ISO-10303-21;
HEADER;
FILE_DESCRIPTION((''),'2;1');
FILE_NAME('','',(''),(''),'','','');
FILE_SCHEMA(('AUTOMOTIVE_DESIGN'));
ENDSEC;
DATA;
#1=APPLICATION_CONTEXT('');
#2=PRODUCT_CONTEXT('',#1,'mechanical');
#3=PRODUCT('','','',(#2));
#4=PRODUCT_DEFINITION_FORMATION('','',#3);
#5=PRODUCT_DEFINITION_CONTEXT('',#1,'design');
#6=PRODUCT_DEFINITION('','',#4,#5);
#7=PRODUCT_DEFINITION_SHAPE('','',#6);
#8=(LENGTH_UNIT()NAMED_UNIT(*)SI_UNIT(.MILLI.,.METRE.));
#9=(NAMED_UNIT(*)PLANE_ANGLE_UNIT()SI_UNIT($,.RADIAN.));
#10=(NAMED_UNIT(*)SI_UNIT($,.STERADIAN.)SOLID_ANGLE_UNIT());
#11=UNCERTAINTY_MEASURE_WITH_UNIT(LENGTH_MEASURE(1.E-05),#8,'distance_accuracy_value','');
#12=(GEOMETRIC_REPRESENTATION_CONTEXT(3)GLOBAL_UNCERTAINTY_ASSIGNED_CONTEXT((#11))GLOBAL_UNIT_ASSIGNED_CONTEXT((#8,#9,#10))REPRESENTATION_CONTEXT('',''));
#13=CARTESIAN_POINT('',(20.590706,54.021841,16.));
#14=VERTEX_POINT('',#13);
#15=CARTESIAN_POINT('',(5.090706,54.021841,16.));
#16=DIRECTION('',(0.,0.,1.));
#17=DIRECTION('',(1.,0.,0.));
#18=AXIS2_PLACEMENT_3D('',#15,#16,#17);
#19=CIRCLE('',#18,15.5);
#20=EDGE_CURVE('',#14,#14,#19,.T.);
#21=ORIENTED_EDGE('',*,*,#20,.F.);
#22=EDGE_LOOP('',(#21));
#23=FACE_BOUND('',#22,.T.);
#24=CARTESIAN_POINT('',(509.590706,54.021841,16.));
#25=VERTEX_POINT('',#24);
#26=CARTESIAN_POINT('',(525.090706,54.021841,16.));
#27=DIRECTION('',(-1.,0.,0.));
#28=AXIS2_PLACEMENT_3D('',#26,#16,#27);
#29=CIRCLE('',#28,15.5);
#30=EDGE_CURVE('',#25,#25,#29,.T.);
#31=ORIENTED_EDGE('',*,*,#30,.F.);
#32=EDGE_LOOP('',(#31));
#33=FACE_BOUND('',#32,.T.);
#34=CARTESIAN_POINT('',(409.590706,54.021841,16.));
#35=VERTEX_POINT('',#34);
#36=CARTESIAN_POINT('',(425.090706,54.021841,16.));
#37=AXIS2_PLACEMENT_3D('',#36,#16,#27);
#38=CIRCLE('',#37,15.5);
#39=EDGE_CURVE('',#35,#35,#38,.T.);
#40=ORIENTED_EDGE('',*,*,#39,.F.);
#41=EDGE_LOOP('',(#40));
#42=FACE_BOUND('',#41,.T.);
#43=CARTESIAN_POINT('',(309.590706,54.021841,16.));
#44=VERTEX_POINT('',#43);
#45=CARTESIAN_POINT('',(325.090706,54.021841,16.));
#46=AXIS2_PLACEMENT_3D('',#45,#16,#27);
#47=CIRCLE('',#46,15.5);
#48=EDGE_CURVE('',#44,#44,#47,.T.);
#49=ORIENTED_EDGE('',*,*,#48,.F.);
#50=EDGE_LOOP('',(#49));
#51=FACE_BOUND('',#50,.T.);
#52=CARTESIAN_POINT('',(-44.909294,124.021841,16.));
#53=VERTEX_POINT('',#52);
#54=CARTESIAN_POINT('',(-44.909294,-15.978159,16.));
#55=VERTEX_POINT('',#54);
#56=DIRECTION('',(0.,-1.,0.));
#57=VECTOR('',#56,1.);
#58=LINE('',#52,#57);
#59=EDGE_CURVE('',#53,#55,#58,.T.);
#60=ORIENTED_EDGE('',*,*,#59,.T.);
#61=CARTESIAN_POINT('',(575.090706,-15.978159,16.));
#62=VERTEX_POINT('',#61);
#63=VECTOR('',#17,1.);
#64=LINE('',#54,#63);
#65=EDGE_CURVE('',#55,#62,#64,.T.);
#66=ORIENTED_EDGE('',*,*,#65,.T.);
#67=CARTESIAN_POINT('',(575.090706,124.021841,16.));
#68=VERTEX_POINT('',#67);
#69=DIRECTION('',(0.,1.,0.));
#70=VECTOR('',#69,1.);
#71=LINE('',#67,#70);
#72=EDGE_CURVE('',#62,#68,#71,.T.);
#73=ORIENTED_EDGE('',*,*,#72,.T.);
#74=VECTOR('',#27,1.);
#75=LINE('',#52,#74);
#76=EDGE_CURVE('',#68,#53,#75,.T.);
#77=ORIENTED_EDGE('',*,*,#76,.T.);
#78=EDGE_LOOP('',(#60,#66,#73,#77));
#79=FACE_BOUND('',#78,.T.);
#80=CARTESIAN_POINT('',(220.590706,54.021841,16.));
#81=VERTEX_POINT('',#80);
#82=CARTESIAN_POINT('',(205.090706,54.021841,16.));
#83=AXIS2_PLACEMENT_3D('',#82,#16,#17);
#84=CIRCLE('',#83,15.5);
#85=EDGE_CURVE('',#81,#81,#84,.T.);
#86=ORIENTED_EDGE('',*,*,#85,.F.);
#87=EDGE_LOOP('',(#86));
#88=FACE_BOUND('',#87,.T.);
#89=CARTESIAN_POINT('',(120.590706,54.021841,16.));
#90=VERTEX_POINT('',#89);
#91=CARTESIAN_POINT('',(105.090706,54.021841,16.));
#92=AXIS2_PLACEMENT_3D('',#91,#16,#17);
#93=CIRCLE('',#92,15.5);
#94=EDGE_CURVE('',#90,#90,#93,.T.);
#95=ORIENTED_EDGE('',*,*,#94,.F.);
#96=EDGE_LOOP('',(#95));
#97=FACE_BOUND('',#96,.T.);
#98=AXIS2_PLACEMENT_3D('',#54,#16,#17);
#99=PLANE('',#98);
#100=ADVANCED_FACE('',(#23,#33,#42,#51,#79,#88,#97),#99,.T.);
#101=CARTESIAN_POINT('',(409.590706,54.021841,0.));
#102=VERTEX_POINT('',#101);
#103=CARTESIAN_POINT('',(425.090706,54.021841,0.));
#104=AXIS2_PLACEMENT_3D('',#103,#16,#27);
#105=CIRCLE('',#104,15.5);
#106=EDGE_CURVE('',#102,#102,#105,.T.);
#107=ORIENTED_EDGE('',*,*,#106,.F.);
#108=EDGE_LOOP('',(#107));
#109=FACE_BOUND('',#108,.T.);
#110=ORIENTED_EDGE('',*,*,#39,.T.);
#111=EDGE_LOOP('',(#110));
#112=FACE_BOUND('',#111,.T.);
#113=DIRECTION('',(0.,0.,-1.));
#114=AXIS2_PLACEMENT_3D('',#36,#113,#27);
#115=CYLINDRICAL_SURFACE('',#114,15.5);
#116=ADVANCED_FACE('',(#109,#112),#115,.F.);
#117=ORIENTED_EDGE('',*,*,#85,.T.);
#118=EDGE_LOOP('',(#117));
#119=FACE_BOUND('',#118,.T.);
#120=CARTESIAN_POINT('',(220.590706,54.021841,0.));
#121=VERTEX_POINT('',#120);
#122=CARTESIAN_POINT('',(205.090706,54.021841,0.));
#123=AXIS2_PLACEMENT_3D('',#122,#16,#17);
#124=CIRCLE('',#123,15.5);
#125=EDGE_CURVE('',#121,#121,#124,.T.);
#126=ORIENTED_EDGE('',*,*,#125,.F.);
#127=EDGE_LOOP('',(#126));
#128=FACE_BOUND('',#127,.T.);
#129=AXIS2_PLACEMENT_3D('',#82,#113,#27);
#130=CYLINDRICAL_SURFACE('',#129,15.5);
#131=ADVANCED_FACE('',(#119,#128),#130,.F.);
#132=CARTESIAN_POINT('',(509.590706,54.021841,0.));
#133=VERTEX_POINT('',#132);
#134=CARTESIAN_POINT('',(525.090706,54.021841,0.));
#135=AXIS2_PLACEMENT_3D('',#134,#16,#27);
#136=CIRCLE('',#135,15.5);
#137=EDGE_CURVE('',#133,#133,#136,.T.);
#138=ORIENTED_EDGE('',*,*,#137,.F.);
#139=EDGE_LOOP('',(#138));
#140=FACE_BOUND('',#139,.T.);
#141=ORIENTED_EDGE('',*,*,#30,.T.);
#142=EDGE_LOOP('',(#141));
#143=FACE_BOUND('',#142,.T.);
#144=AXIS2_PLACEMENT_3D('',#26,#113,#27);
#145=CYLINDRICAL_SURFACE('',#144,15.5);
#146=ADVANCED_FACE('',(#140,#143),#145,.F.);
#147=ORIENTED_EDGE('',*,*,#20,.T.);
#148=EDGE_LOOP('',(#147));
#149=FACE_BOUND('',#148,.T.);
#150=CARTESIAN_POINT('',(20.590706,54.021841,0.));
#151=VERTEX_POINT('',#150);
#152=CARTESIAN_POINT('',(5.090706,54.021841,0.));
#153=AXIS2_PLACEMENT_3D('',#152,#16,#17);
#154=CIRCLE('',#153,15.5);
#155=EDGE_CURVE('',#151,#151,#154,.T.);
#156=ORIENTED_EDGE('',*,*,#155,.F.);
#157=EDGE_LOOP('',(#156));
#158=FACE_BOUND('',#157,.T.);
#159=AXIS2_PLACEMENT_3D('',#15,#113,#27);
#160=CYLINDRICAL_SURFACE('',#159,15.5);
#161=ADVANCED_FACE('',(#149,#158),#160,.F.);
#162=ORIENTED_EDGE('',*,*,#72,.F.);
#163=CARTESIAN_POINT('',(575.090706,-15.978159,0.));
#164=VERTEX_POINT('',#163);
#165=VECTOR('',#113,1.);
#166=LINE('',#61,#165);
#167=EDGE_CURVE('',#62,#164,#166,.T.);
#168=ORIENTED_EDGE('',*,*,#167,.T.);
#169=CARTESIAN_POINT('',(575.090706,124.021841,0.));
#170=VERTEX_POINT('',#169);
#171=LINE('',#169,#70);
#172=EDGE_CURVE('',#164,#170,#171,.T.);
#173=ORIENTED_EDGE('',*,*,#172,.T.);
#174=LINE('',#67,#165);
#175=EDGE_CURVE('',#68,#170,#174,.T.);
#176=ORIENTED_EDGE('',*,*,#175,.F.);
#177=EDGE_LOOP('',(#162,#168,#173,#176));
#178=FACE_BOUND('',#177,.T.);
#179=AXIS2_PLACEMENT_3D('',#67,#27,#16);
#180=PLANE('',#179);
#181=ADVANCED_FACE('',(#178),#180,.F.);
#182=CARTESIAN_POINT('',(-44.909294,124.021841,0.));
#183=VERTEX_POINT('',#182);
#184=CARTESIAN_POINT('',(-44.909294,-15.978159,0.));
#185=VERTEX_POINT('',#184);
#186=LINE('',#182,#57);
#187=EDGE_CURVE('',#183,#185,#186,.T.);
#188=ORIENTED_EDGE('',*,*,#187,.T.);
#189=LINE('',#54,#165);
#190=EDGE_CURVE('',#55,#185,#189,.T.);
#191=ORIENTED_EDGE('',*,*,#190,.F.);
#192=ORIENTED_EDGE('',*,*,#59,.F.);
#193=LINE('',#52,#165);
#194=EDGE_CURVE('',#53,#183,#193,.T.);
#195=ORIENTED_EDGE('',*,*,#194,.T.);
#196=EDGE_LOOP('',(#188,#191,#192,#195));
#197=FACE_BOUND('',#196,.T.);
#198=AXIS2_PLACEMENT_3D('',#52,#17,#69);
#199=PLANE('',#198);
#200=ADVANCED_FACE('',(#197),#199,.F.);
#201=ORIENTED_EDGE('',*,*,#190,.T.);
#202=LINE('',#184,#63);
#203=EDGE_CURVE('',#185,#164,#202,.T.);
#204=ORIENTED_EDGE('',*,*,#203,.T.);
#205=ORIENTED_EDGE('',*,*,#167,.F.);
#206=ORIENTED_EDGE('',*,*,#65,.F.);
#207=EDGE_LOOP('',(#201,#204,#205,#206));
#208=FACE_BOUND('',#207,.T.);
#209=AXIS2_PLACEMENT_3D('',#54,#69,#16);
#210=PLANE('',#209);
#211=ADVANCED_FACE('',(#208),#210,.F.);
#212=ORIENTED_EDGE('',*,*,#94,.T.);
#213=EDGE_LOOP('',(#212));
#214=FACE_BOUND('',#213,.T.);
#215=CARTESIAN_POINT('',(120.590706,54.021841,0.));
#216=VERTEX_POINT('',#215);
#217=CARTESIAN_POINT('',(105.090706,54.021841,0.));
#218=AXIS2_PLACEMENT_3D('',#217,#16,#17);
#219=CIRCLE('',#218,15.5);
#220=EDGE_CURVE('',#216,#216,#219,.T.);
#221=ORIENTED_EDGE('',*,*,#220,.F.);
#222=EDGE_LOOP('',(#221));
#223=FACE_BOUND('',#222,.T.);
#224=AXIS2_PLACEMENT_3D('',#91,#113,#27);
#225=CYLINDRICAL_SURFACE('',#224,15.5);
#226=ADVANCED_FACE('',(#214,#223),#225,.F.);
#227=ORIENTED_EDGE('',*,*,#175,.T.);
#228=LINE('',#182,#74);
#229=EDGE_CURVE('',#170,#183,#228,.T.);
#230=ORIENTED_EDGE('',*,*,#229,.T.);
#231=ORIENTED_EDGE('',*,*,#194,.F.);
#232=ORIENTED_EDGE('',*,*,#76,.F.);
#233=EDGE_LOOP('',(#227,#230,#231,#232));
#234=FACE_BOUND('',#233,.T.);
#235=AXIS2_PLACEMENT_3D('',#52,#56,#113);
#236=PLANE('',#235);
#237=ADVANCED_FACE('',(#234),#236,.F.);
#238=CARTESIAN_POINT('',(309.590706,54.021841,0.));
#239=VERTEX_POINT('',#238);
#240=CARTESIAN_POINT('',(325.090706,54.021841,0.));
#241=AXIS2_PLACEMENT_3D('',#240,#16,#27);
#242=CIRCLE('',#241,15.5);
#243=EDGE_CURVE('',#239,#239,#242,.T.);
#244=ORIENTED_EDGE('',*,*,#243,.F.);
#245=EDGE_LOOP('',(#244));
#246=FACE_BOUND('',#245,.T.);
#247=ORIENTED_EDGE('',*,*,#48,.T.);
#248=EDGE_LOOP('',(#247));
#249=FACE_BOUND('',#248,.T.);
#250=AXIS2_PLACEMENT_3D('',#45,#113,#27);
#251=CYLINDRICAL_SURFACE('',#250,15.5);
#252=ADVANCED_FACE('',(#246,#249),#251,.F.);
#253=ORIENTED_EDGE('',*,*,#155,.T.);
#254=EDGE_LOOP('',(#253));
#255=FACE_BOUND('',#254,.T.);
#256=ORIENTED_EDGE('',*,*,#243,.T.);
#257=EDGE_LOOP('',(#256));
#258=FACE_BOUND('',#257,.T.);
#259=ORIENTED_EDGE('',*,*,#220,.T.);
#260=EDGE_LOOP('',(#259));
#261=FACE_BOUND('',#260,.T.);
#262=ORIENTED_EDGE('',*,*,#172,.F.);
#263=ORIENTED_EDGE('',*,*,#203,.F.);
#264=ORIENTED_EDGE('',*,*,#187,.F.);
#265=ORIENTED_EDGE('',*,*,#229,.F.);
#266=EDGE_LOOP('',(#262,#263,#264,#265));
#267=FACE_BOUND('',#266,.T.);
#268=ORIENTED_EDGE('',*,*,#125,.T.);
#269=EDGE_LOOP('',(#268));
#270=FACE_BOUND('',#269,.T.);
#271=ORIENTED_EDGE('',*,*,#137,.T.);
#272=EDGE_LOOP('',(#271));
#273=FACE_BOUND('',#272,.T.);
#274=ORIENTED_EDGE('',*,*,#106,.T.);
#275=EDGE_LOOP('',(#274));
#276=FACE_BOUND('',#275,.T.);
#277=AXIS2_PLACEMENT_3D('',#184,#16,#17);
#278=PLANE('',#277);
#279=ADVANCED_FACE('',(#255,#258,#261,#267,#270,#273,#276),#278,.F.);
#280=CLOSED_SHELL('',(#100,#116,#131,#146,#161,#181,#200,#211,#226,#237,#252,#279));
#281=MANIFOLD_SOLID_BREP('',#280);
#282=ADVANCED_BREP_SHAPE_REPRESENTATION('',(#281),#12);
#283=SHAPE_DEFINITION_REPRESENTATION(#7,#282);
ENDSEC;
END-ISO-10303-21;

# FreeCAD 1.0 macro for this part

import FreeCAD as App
import Part
import Sketcher

V = App.Vector


def add_polygon(sketch, points):
    """Adds a closed chain of lines whose ends are joined by coincident constraints."""
    first, n = sketch.GeometryCount, len(points)
    for a, b in zip(points, points[1:] + points[:1]):
        sketch.addGeometry(Part.LineSegment(App.Vector(*a, 0), App.Vector(*b, 0)), False)
    for i in range(n):
        sketch.addConstraint(Sketcher.Constraint("Coincident", first + i, 2, first + (i + 1) % n, 1))

doc = App.newDocument("Part")
body = doc.addObject("PartDesign::Body", "Body")

sketch1 = body.newObject("Sketcher::SketchObject", "Sketch")
sketch1.AttachmentSupport = (doc.getObject("XY_Plane"), [""])
sketch1.MapMode = "FlatFace"
add_polygon(sketch1, [(-45, 124), (-45, -16), (575, -16), (575, 124)])
sketch1.addGeometry(Part.Circle(V(5, 54, 0), V(0, 0, 1), 16), False)
sketch1.addGeometry(Part.Circle(V(105, 54, 0), V(0, 0, 1), 16), False)
sketch1.addGeometry(Part.Circle(V(205, 54, 0), V(0, 0, 1), 16), False)
sketch1.addGeometry(Part.Circle(V(325, 54, 0), V(0, 0, 1), 16), False)
sketch1.addGeometry(Part.Circle(V(425, 54, 0), V(0, 0, 1), 16), False)
sketch1.addGeometry(Part.Circle(V(525, 54, 0), V(0, 0, 1), 16), False)
sketch1.addConstraint(Sketcher.Constraint("Vertical", 0))
sketch1.addConstraint(Sketcher.Constraint("Horizontal", 1))
sketch1.addConstraint(Sketcher.Constraint("Vertical", 2))
sketch1.addConstraint(Sketcher.Constraint("Horizontal", 3))
sketch1.addConstraint(Sketcher.Constraint("Equal", 4, 5))
sketch1.addConstraint(Sketcher.Constraint("Equal", 5, 6))
sketch1.addConstraint(Sketcher.Constraint("Equal", 6, 7))
sketch1.addConstraint(Sketcher.Constraint("Equal", 7, 8))
sketch1.addConstraint(Sketcher.Constraint("Equal", 8, 9))
sketch1.addConstraint(Sketcher.Constraint("Horizontal", 4, 3, 5, 3))
sketch1.addConstraint(Sketcher.Constraint("Horizontal", 5, 3, 6, 3))
sketch1.addConstraint(Sketcher.Constraint("Horizontal", 6, 3, 7, 3))
sketch1.addConstraint(Sketcher.Constraint("Horizontal", 7, 3, 8, 3))
sketch1.addConstraint(Sketcher.Constraint("Horizontal", 8, 3, 9, 3))
sketch1.addConstraint(Sketcher.Constraint("Diameter", 4, 31.0))
sketch1.addConstraint(Sketcher.Constraint("DistanceX", 1, 1, 1, 2, 620.0))
sketch1.addConstraint(Sketcher.Constraint("DistanceY", 0, 2, 0, 1, 140.0))
sketch1.addConstraint(Sketcher.Constraint("DistanceX", 4, 3, 5, 3, 100.0))
sketch1.addConstraint(Sketcher.Constraint("DistanceX", 5, 3, 6, 3, 100.0))
sketch1.addConstraint(Sketcher.Constraint("DistanceX", 6, 3, 7, 3, 120.0))
sketch1.addConstraint(Sketcher.Constraint("DistanceX", 7, 3, 8, 3, 100.0))
sketch1.addConstraint(Sketcher.Constraint("DistanceX", 8, 3, 9, 3, 100.0))
sketch1.addConstraint(Sketcher.Constraint("DistanceX", 0, 2, 4, 3, 50.0))
sketch1.addConstraint(Sketcher.Constraint("DistanceY", 0, 2, 4, 3, 70.0))
sketch1.addConstraint(Sketcher.Constraint("DistanceY", -1, 1, 4, 3, 54.021841))
sketch1.addConstraint(Sketcher.Constraint("DistanceX", -1, 1, 4, 3, 5.090706))
pad1 = body.newObject("PartDesign::Pad", "Pad")
pad1.Profile = sketch1
pad1.Length = 16

doc.recompute()
